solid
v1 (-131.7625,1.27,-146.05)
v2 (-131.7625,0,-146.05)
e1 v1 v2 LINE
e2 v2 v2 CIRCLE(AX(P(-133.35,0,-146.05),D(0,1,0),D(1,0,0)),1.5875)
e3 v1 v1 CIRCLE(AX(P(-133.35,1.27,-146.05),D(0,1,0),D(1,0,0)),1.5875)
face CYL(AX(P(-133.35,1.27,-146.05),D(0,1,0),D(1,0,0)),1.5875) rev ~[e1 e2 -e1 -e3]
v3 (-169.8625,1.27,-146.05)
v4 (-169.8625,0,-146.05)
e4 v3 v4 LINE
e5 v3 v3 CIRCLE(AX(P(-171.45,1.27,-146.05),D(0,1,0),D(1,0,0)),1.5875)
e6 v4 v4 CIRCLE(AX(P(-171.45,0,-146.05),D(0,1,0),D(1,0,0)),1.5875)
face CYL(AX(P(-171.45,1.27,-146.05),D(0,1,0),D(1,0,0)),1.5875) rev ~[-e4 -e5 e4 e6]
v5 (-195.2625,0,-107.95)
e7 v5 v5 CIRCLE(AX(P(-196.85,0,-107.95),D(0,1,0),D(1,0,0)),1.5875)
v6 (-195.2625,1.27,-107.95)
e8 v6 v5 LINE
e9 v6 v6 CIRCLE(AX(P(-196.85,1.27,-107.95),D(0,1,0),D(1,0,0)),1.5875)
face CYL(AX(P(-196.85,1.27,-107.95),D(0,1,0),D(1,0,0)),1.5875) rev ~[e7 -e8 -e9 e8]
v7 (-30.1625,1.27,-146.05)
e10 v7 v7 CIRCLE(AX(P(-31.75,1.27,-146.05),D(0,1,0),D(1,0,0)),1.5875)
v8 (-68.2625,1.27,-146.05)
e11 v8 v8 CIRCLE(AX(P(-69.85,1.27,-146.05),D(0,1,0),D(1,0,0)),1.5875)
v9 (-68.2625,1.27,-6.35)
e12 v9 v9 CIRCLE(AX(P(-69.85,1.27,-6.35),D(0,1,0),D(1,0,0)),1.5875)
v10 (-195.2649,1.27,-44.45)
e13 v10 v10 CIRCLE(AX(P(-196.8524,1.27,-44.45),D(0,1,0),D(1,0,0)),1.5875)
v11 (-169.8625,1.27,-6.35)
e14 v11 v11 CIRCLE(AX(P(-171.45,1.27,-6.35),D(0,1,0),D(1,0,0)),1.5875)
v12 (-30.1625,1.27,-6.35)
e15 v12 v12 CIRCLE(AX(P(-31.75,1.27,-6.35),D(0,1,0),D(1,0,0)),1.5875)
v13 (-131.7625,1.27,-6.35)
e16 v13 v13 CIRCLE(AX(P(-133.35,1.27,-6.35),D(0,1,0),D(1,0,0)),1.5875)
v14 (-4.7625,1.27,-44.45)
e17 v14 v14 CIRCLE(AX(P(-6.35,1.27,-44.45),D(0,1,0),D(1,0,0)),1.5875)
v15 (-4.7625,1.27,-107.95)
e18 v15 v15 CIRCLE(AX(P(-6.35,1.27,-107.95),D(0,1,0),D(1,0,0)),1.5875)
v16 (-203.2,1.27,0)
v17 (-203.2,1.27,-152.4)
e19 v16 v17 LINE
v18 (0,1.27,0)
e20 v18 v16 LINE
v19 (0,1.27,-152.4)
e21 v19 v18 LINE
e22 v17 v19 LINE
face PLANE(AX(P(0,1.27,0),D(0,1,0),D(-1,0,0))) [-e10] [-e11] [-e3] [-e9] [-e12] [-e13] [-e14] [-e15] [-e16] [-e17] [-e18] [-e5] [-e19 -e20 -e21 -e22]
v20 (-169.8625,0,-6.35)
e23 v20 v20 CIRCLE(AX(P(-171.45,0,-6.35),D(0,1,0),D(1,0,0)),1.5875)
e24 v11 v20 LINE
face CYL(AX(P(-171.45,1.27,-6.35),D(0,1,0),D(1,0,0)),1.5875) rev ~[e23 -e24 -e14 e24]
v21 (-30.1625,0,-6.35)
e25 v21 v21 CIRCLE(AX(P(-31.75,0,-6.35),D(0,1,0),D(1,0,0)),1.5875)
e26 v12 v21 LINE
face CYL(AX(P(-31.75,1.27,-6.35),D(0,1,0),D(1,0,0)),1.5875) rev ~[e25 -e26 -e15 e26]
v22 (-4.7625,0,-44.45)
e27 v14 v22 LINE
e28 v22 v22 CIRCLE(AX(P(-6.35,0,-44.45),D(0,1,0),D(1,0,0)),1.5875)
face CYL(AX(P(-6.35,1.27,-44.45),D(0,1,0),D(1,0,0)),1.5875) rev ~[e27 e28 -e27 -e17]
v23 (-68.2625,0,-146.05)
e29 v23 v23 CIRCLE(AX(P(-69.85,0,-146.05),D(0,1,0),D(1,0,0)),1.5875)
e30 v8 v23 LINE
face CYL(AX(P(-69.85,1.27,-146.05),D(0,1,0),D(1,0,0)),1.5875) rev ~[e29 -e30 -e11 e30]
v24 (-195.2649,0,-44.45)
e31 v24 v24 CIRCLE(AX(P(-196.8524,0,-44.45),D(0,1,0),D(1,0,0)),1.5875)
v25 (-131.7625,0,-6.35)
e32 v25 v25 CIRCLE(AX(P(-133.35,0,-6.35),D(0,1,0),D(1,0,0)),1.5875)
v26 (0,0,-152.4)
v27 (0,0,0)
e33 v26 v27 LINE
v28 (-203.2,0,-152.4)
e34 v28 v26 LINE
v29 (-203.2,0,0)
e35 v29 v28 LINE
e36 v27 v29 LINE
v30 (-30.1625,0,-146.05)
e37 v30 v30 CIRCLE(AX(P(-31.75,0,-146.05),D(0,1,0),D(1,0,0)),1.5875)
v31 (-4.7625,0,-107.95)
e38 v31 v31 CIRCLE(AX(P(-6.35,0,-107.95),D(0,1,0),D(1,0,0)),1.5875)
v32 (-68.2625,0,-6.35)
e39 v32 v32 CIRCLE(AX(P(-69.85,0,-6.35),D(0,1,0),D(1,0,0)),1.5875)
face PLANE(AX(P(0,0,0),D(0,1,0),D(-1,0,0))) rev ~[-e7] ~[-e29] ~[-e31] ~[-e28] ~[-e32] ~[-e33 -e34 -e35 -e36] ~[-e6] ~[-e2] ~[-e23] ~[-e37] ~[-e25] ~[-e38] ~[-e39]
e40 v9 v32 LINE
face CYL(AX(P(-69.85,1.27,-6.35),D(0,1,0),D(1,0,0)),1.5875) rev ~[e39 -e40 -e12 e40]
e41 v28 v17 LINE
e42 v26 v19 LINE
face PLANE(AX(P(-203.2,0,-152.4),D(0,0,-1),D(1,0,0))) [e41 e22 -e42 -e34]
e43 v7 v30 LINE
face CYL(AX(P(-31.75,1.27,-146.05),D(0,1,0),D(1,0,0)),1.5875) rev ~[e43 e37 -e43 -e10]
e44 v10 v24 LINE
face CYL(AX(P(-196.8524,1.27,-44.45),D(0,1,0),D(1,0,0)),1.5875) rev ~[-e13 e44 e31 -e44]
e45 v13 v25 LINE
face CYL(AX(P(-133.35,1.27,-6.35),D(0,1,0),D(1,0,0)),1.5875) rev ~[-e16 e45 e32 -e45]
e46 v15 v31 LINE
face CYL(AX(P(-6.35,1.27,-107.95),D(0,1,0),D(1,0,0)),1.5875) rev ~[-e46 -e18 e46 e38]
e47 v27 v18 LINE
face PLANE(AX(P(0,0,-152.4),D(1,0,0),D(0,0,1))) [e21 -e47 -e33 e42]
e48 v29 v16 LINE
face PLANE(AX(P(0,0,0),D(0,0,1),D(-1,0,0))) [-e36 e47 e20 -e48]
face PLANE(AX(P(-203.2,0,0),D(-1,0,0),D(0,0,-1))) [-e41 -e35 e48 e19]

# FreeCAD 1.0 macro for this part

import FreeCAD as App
import Part
import Sketcher
from FreeCAD import Vector
Q = App.Units.Quantity

doc = App.newDocument("Part")
body = doc.addObject("PartDesign::Body", "Body")

sketch1 = body.newObject("Sketcher::SketchObject", "Sketch")
sketch1.AttachmentSupport = (doc.getObject("XZ_Plane"), [""])
sketch1.MapMode = "FlatFace"
sketch1.addGeometry(Part.LineSegment(Vector(-203, 0, 0), Vector(0, 0, 0)), False)
sketch1.addGeometry(Part.LineSegment(Vector(0, 0, 0), Vector(0, -152, 0)), False)
sketch1.addGeometry(Part.LineSegment(Vector(0, -152, 0), Vector(-203, -152, 0)), False)
sketch1.addGeometry(Part.LineSegment(Vector(-203, -152, 0), Vector(-203, 0, 0)), False)
sketch1.addConstraint(Sketcher.Constraint("Coincident", 0, 2, 1, 1))
sketch1.addConstraint(Sketcher.Constraint("Coincident", 1, 2, 2, 1))
sketch1.addConstraint(Sketcher.Constraint("Coincident", 2, 2, 3, 1))
sketch1.addConstraint(Sketcher.Constraint("Coincident", 3, 2, 0, 1))
sketch1.addConstraint(Sketcher.Constraint("Horizontal", 0))
sketch1.addConstraint(Sketcher.Constraint("Vertical", 1))
sketch1.addConstraint(Sketcher.Constraint("Horizontal", 2))
sketch1.addConstraint(Sketcher.Constraint("Vertical", 3))
sketch1.addConstraint(Sketcher.Constraint("Coincident", 0, 2, -1, 1))
sketch1.addConstraint(Sketcher.Constraint("DistanceX", 0, 1, 0, 2, Q("8 in")))
sketch1.addConstraint(Sketcher.Constraint("DistanceY", 1, 2, 1, 1, Q("6 in")))
pad1 = body.newObject("PartDesign::Pad", "Pad")
pad1.Profile = sketch1
pad1.Length = Q("0.05 in")
pad1.Reversed = True

sketch2 = body.newObject("Sketcher::SketchObject", "Sketch001")
sketch2.AttachmentSupport = (doc.getObject("XZ_Plane"), [""])
sketch2.MapMode = "FlatFace"
sketch2.AttachmentOffset = App.Placement(Vector(0, 0, -0.05 * 25.4), App.Rotation())
sketch2.addGeometry(Part.Circle(Vector(-171.4, -6.3, 0), Vector(0, 0, 1), 1.6), False)
sketch2.addGeometry(Part.Circle(Vector(-196.9, -44.5, 0), Vector(0, 0, 1), 1.6), False)
sketch2.addGeometry(Part.Circle(Vector(-31.8, -6.3, 0), Vector(0, 0, 1), 1.6), False)
sketch2.addGeometry(Part.Circle(Vector(-6.3, -44.5, 0), Vector(0, 0, 1), 1.6), False)
sketch2.addGeometry(Part.Circle(Vector(-6.3, -108, 0), Vector(0, 0, 1), 1.6), False)
sketch2.addGeometry(Part.Circle(Vector(-31.8, -146.1, 0), Vector(0, 0, 1), 1.6), False)
sketch2.addGeometry(Part.Circle(Vector(-171.4, -146.1, 0), Vector(0, 0, 1), 1.6), False)
sketch2.addGeometry(Part.Circle(Vector(-196.8, -108, 0), Vector(0, 0, 1), 1.6), False)
sketch2.addGeometry(Part.Circle(Vector(-133.3, -6.3, 0), Vector(0, 0, 1), 1.6), False)
sketch2.addGeometry(Part.Circle(Vector(-69.8, -6.3, 0), Vector(0, 0, 1), 1.6), False)
sketch2.addGeometry(Part.Circle(Vector(-69.8, -146.1, 0), Vector(0, 0, 1), 1.6), False)
sketch2.addGeometry(Part.Circle(Vector(-133.3, -146.1, 0), Vector(0, 0, 1), 1.6), False)
sketch2.addConstraint(Sketcher.Constraint("Equal", 0, 1))
sketch2.addConstraint(Sketcher.Constraint("Equal", 1, 2))
sketch2.addConstraint(Sketcher.Constraint("Equal", 2, 3))
sketch2.addConstraint(Sketcher.Constraint("Equal", 3, 4))
sketch2.addConstraint(Sketcher.Constraint("Equal", 4, 5))
sketch2.addConstraint(Sketcher.Constraint("Equal", 5, 6))
sketch2.addConstraint(Sketcher.Constraint("Equal", 6, 7))
sketch2.addConstraint(Sketcher.Constraint("Equal", 7, 8))
sketch2.addConstraint(Sketcher.Constraint("Equal", 8, 9))
sketch2.addConstraint(Sketcher.Constraint("Equal", 9, 10))
sketch2.addConstraint(Sketcher.Constraint("Equal", 10, 11))
sketch2.addConstraint(Sketcher.Constraint("Horizontal", 0, 3, 2, 3))
sketch2.addConstraint(Sketcher.Constraint("Horizontal", 1, 3, 3, 3))
sketch2.addConstraint(Sketcher.Constraint("Horizontal", 5, 3, 6, 3))
sketch2.addConstraint(Sketcher.Constraint("Horizontal", 4, 3, 7, 3))
sketch2.addConstraint(Sketcher.Constraint("Horizontal", 2, 3, 8, 3))
sketch2.addConstraint(Sketcher.Constraint("Horizontal", 8, 3, 9, 3))
sketch2.addConstraint(Sketcher.Constraint("Horizontal", 6, 3, 10, 3))
sketch2.addConstraint(Sketcher.Constraint("Horizontal", 10, 3, 11, 3))
sketch2.addConstraint(Sketcher.Constraint("Vertical", 3, 3, 4, 3))
sketch2.addConstraint(Sketcher.Constraint("Vertical", 2, 3, 5, 3))
sketch2.addConstraint(Sketcher.Constraint("Vertical", 0, 3, 6, 3))
sketch2.addConstraint(Sketcher.Constraint("Vertical", 9, 3, 10, 3))
sketch2.addConstraint(Sketcher.Constraint("Vertical", 8, 3, 11, 3))
sketch2.addConstraint(Sketcher.Constraint("Diameter", 0, Q("0.125 in")))
sketch2.addConstraint(Sketcher.Constraint("DistanceY", 0, 3, -1, 1, Q("0.25 in")))
sketch2.addConstraint(Sketcher.Constraint("DistanceY", 1, 3, -1, 1, Q("1.75 in")))
sketch2.addConstraint(Sketcher.Constraint("DistanceX", 2, 3, -1, 1, Q("1.25 in")))
sketch2.addConstraint(Sketcher.Constraint("DistanceX", 3, 3, -1, 1, Q("0.25 in")))
sketch2.addConstraint(Sketcher.Constraint("DistanceX", 9, 3, -1, 1, Q("2.75 in")))
sketch2.addConstraint(Sketcher.Constraint("DistanceY", 4, 3, 2, 3, Q("4 in")))
sketch2.addConstraint(Sketcher.Constraint("DistanceY", 5, 3, 3, 3, Q("4 in")))
sketch2.addConstraint(Sketcher.Constraint("DistanceX", 7, 3, 6, 3, Q("1 in")))
sketch2.addConstraint(Sketcher.Constraint("DistanceX", 8, 3, 2, 3, Q("4 in")))
sketch2.addConstraint(Sketcher.Constraint("DistanceX", 0, 3, 9, 3, Q("4 in")))
sketch2.addConstraint(Sketcher.Constraint("DistanceX", 1, 3, -1, 1, Q("7.7501 in")))
pocket1 = body.newObject("PartDesign::Pocket", "Pocket")
pocket1.Profile = sketch2
pocket1.Length = Q("1 in")
pocket1.Reversed = True

doc.recompute()
